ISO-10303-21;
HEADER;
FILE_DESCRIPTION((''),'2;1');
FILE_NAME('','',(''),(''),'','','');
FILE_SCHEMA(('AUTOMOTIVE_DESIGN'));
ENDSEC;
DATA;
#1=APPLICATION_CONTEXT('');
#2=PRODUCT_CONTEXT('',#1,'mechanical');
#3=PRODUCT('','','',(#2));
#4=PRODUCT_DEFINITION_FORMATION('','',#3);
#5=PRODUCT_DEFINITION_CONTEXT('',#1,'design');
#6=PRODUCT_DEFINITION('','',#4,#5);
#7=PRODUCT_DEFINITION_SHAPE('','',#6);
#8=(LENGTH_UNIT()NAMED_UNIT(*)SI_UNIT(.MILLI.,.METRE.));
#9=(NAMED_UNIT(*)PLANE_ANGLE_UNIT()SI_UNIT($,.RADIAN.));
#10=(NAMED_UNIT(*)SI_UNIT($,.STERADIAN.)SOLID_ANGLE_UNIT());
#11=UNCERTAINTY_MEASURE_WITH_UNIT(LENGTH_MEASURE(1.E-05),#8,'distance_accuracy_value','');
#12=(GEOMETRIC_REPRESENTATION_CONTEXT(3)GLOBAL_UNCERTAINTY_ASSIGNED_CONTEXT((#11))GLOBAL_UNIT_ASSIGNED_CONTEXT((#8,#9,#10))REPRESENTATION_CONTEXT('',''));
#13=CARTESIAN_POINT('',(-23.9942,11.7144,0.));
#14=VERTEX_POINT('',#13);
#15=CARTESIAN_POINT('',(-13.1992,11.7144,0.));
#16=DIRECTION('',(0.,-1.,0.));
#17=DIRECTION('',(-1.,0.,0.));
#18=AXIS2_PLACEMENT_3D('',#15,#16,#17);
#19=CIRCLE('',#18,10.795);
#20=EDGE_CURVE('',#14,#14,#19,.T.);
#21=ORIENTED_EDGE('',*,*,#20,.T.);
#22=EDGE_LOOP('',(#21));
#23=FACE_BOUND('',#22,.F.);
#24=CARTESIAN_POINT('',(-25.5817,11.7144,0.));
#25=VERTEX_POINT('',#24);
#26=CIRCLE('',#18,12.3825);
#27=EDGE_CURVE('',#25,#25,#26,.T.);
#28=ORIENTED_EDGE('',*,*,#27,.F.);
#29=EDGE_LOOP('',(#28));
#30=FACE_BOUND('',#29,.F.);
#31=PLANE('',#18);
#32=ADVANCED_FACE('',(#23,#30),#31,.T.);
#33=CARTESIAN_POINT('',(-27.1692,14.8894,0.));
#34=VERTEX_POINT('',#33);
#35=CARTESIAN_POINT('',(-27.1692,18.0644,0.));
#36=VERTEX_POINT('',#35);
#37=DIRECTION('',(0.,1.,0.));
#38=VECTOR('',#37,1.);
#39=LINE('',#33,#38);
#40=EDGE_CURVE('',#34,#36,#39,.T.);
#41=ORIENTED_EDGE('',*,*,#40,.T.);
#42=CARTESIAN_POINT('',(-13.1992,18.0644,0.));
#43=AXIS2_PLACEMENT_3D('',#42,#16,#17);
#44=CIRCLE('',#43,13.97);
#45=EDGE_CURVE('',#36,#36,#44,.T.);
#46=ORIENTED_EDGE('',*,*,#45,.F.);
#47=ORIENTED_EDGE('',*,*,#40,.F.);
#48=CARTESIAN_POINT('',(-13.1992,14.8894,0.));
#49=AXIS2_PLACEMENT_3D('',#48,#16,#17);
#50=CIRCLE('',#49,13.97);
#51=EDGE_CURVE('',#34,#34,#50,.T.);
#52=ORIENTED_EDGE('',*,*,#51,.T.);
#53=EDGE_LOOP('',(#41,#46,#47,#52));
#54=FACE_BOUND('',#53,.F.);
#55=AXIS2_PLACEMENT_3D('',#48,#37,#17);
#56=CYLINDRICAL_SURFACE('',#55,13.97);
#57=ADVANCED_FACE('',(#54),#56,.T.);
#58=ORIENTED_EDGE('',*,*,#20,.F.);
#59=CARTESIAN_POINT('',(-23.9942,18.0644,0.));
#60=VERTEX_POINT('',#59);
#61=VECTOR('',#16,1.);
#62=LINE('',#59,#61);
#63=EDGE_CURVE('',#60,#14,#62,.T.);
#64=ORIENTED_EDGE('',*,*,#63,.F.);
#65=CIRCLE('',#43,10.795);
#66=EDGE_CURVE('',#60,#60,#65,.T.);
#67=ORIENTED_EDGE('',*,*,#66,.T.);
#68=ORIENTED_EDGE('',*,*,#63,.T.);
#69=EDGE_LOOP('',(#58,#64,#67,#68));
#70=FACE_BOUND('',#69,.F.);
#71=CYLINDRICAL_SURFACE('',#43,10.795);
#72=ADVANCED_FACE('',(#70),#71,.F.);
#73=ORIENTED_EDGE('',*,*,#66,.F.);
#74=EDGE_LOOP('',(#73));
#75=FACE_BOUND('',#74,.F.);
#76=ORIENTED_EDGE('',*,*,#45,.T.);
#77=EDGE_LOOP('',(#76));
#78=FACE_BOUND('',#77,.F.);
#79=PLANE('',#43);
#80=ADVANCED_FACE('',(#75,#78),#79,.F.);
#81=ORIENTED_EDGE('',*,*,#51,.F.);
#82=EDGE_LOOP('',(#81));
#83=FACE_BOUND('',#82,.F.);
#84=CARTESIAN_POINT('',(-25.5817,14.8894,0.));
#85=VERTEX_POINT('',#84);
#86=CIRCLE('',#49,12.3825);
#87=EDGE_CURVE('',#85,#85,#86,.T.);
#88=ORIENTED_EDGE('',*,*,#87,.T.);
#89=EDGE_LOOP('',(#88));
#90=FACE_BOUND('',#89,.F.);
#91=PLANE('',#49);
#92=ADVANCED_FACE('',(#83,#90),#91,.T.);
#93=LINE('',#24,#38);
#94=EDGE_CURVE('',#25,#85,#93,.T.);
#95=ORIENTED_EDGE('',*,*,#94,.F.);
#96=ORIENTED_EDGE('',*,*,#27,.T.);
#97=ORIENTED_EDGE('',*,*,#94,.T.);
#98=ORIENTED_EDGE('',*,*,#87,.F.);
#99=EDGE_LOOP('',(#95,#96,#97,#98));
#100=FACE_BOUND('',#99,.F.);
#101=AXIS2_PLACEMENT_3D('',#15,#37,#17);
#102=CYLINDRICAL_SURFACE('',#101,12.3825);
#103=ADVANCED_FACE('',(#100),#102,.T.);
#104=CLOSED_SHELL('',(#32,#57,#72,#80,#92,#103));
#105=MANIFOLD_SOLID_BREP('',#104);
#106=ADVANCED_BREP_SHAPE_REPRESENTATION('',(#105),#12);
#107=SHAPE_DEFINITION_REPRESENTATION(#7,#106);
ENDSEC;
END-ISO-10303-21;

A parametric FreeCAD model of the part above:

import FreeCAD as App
import Part
import Sketcher
from FreeCAD import Vector
Q = App.Units.Quantity

doc = App.newDocument("Part")
params = doc.addObject("Spreadsheet::Sheet", "Params")
for row, (alias, value) in enumerate([
    ("sketch1_width", "0.125 in"),
    ("revolution_angle", "360 deg"),
], start=1):
    params.set(f"A{row}", alias)
    params.set(f"B{row}", "=" + value)
    params.setAlias(f"B{row}", alias)

body = doc.addObject("PartDesign::Body", "Body")

# Sketch on XY plane
sketch1 = body.newObject("Sketcher::SketchObject", "Sketch")
sketch1.AttachmentSupport = (doc.getObject("XY_Plane"), [""])
sketch1.MapMode = "FlatFace"
sketch1.addGeometry([
    Part.LineSegment(Vector(-24, 18.1, 0), Vector(-27.2, 18.1, 0)),  # 0
    Part.LineSegment(Vector(-27.2, 18.1, 0), Vector(-27.2, 14.9, 0)),  # 1
    Part.LineSegment(Vector(-27.2, 14.9, 0), Vector(-25.6, 14.9, 0)),  # 2
    Part.LineSegment(Vector(-25.6, 14.9, 0), Vector(-25.6, 11.7, 0)),  # 3
    Part.LineSegment(Vector(-25.6, 11.7, 0), Vector(-24, 11.7, 0)),  # 4
    Part.LineSegment(Vector(-24, 11.7, 0), Vector(-24, 18.1, 0)),  # 5
], False)
sketch1.addGeometry(Part.LineSegment(Vector(-13.2, 18.1, 0), Vector(-13.2, 11.7, 0)), True)  # axis
sketch1.addConstraint([
    Sketcher.Constraint("Coincident", 0, 2, 1, 1),
    Sketcher.Constraint("Coincident", 1, 2, 2, 1),
    Sketcher.Constraint("Coincident", 2, 2, 3, 1),
    Sketcher.Constraint("Coincident", 3, 2, 4, 1),
    Sketcher.Constraint("Coincident", 4, 2, 5, 1),
    Sketcher.Constraint("Coincident", 5, 2, 0, 1),
    Sketcher.Constraint("Horizontal", 0),
    Sketcher.Constraint("Vertical", 1),
    Sketcher.Constraint("Horizontal", 2),
    Sketcher.Constraint("Vertical", 3),
    Sketcher.Constraint("Horizontal", 4),
    Sketcher.Constraint("Vertical", 5),
    Sketcher.Constraint("Vertical", 6),
    Sketcher.Constraint("Horizontal", 5, 2, 6, 1),
    Sketcher.Constraint("Horizontal", 4, 2, 6, 2),
    Sketcher.Constraint("Equal", 2, 4),
    Sketcher.Constraint("Equal", 0, 1),
    Sketcher.Constraint("Equal", 1, 3),
    Sketcher.Constraint("DistanceX", 0, 2, 0, 1, Q("0.125 in")),
    Sketcher.Constraint("DistanceX", 0, 2, 6, 1, Q("0.55 in")),
    Sketcher.Constraint("DistanceY", -1, 1, 0, 2, Q("0.7112 in")),
    Sketcher.Constraint("DistanceX", 0, 2, -1, 1, 27.1692),
])
sketch1.setExpression("Constraints[18]", "Params.sketch1_width")
revolution = body.newObject("PartDesign::Revolution", "Revolution")
revolution.Profile = sketch1
revolution.ReferenceAxis = (sketch1, ["Axis0"])
revolution.setExpression("Angle", "Params.revolution_angle")

doc.recompute()
